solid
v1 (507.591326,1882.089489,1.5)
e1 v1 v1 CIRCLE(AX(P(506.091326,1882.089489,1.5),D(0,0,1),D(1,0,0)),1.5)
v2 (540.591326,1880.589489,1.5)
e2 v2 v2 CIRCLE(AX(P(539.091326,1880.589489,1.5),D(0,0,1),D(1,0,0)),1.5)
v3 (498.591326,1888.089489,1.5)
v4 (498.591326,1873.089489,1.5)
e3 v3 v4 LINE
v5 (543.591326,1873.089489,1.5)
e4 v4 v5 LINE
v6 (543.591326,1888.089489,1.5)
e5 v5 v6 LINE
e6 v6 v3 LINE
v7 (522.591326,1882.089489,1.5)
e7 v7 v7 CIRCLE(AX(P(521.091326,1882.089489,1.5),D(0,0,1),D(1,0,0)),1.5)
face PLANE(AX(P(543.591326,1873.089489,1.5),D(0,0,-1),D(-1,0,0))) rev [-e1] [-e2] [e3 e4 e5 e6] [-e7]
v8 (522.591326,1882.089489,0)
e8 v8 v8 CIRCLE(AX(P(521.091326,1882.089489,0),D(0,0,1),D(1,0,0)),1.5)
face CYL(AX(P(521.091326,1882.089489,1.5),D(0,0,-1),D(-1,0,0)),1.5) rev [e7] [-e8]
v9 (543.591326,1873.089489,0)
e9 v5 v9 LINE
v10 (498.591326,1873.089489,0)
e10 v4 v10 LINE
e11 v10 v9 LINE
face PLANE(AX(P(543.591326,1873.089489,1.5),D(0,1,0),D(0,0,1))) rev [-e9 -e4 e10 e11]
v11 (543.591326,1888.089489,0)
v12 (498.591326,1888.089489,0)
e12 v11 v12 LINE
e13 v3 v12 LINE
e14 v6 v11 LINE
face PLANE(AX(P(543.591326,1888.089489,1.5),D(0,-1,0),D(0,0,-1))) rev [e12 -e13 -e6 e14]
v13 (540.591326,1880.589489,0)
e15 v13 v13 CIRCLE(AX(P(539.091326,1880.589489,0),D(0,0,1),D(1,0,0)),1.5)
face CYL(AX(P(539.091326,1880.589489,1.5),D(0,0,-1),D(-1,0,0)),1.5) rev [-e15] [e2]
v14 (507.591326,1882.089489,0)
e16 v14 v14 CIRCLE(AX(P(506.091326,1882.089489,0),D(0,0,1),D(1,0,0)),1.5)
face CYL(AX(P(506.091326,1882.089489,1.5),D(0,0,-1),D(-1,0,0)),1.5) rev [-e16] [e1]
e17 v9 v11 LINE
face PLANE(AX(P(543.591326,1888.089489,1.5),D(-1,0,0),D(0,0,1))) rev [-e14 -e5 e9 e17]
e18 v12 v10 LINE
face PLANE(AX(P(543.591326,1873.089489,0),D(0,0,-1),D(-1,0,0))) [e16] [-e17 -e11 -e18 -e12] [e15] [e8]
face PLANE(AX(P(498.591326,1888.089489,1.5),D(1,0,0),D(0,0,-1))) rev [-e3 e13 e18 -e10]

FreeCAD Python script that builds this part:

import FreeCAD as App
import Part
import Sketcher

doc = App.newDocument("Part")
body = doc.addObject("PartDesign::Body", "Body")

# Sketch on XY plane
sketch1 = doc.addObject("Sketcher::SketchObject", "Sketch")
body.addObject(sketch1)
sketch1.AttachmentSupport = (doc.XY_Plane, [""])
sketch1.MapMode = "FlatFace"
sketch1.addGeometry([
    Part.LineSegment(App.Vector(498.591326, 1888.089489, 0), App.Vector(498.591326, 1873.089489, 0)),  # 0
    Part.LineSegment(App.Vector(498.591326, 1873.089489, 0), App.Vector(543.591326, 1873.089489, 0)),  # 1
    Part.LineSegment(App.Vector(543.591326, 1873.089489, 0), App.Vector(543.591326, 1888.089489, 0)),  # 2
    Part.LineSegment(App.Vector(543.591326, 1888.089489, 0), App.Vector(498.591326, 1888.089489, 0)),  # 3
    Part.Circle(App.Vector(539.091326, 1880.589489, 0), App.Vector(0, 0, 1), 1.5),  # 4
    Part.Circle(App.Vector(506.091326, 1882.089489, 0), App.Vector(0, 0, 1), 1.5),  # 5
    Part.Circle(App.Vector(521.091326, 1882.089489, 0), App.Vector(0, 0, 1), 1.5),  # 6
], False)
sketch1.addConstraint([
    Sketcher.Constraint("Coincident", 0, 2, 1, 1),
    Sketcher.Constraint("Coincident", 1, 2, 2, 1),
    Sketcher.Constraint("Coincident", 2, 2, 3, 1),
    Sketcher.Constraint("Coincident", 3, 2, 0, 1),
    Sketcher.Constraint("Vertical", 0),
    Sketcher.Constraint("Horizontal", 1),
    Sketcher.Constraint("Vertical", 2),
    Sketcher.Constraint("Horizontal", 3),
    Sketcher.Constraint("Equal", 4, 5),
    Sketcher.Constraint("Equal", 5, 6),
    Sketcher.Constraint("Horizontal", 5, 3, 6, 3),
    Sketcher.Constraint("Diameter", 4, 3.0),
    Sketcher.Constraint("DistanceX", 1, 1, 1, 2, 45.0),
    Sketcher.Constraint("DistanceY", 0, 2, 0, 1, 15.0),
    Sketcher.Constraint("DistanceX", 5, 3, 4, 3, 33.0),
    Sketcher.Constraint("DistanceX", 5, 3, 6, 3, 15.0),
    Sketcher.Constraint("DistanceY", 0, 2, 5, 3, 9.0),
    Sketcher.Constraint("DistanceY", 4, 3, 5, 3, 1.5),
    Sketcher.Constraint("DistanceX", 0, 2, 5, 3, 7.5),
    Sketcher.Constraint("DistanceY", -1, 1, 4, 3, 1880.589489),
    Sketcher.Constraint("DistanceX", -1, 1, 4, 3, 539.091326),
])
pad1 = doc.addObject("PartDesign::Pad", "Pad")
body.addObject(pad1)
pad1.Profile = sketch1
pad1.Length = 1.5

doc.recompute()
